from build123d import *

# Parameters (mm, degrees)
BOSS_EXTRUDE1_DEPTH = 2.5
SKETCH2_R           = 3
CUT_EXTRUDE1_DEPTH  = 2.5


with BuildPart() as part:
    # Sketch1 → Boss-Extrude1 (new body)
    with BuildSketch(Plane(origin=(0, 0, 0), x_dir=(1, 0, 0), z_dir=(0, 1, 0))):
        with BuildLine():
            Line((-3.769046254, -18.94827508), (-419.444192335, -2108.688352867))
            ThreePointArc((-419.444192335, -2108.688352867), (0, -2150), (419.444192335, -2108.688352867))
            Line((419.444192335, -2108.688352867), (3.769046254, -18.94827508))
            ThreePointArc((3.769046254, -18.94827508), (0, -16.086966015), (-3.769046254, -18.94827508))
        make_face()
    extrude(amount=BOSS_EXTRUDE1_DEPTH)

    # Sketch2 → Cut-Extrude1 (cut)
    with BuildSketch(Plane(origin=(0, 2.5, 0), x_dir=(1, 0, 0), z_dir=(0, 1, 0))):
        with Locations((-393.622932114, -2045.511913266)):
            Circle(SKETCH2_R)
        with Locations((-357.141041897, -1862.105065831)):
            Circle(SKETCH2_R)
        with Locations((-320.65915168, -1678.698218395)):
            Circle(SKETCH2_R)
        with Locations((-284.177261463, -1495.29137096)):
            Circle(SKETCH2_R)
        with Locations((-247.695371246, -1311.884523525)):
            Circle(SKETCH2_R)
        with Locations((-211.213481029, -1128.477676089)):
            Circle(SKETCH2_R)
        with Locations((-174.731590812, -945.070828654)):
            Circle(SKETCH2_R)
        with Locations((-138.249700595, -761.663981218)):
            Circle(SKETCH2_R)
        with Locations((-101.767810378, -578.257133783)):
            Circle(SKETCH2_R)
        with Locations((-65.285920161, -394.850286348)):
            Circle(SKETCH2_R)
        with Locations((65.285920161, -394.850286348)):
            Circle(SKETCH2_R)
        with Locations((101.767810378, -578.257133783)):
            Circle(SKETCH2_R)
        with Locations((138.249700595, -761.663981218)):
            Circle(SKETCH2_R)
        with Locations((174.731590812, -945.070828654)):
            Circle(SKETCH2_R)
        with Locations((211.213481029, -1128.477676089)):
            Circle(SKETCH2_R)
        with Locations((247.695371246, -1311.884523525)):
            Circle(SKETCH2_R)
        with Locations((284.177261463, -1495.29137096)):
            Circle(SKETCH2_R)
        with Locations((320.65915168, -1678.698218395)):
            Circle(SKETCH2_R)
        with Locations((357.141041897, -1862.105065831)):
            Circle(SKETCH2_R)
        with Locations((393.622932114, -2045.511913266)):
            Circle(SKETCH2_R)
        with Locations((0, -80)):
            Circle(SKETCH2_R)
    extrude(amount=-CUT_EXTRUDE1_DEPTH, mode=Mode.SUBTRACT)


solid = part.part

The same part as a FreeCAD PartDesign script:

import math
import FreeCAD as App
import Part
import Sketcher
Q = App.Units.Quantity

doc = App.newDocument("Part")
body = doc.addObject("PartDesign::Body", "Body")

sketch1 = body.newObject("Sketcher::SketchObject", "Sketch")
sketch1.AttachmentSupport = (doc.getObject("XZ_Plane"), [""])
sketch1.MapMode = "FlatFace"
sketch1.addGeometry([
    Part.LineSegment(App.Vector(-3.769046, 18.948275, 0), App.Vector(-419.444192, 2108.688353, 0)),
    Part.ArcOfCircle(Part.Circle(App.Vector(0, 0, 0), App.Vector(0, 0, 1), 2150), math.radians(78.75), math.radians(101.25)),
    Part.LineSegment(App.Vector(419.444192, 2108.688353, 0), App.Vector(3.769046, 18.948275, 0)),
    Part.ArcOfCircle(Part.Circle(App.Vector(0, 20, 0), App.Vector(0, 0, 1), 3.913034), math.radians(-164.408627), math.radians(-15.591373)),
], False)
sketch1.addConstraint([
    Sketcher.Constraint("Coincident", 0, 2, 1, 2),
    Sketcher.Constraint("Coincident", 1, 1, 2, 1),
    Sketcher.Constraint("Coincident", 2, 2, 3, 2),
    Sketcher.Constraint("Coincident", 3, 1, 0, 1),
    Sketcher.Constraint("Coincident", 1, 3, -1, 1),
    Sketcher.Constraint("Symmetric", 2, 2, 3, 1, -2),
    Sketcher.Constraint("Radius", 1, 2150.0),
    Sketcher.Constraint("DistanceY", -1, 1, 3, 3, 20.0),
    Sketcher.Constraint("Angle", 0, Q("101.25 deg")),
    Sketcher.Constraint("Angle", 2, Q("-101.25 deg")),
    Sketcher.Constraint("Radius", 3, 3.913034),
    Sketcher.Constraint("DistanceX", 0, 2, 2, 2, 423.213239),
])
pad1 = body.newObject("PartDesign::Pad", "Pad")
pad1.Profile = sketch1
pad1.Length = 2.5
pad1.Reversed = True

sketch2 = body.newObject("Sketcher::SketchObject", "Sketch001")
sketch2.AttachmentSupport = (doc.getObject("XZ_Plane"), [""])
sketch2.MapMode = "FlatFace"
sketch2.AttachmentOffset = App.Placement(App.Vector(0, 0, -2.5), App.Rotation())
sketch2.addGeometry([
    Part.Circle(App.Vector(-393.622932, 2045.511913, 0), App.Vector(0, 0, 1), 3),
    Part.Circle(App.Vector(-357.141042, 1862.105066, 0), App.Vector(0, 0, 1), 3),
    Part.Circle(App.Vector(-320.659152, 1678.698218, 0), App.Vector(0, 0, 1), 3),
    Part.Circle(App.Vector(-284.177261, 1495.291371, 0), App.Vector(0, 0, 1), 3),
    Part.Circle(App.Vector(-247.695371, 1311.884524, 0), App.Vector(0, 0, 1), 3),
    Part.Circle(App.Vector(-211.213481, 1128.477676, 0), App.Vector(0, 0, 1), 3),
    Part.Circle(App.Vector(-174.731591, 945.070829, 0), App.Vector(0, 0, 1), 3),
    Part.Circle(App.Vector(-138.249701, 761.663981, 0), App.Vector(0, 0, 1), 3),
    Part.Circle(App.Vector(-101.76781, 578.257134, 0), App.Vector(0, 0, 1), 3),
    Part.Circle(App.Vector(-65.28592, 394.850286, 0), App.Vector(0, 0, 1), 3),
    Part.Circle(App.Vector(65.28592, 394.850286, 0), App.Vector(0, 0, 1), 3),
    Part.Circle(App.Vector(101.76781, 578.257134, 0), App.Vector(0, 0, 1), 3),
    Part.Circle(App.Vector(138.249701, 761.663981, 0), App.Vector(0, 0, 1), 3),
    Part.Circle(App.Vector(174.731591, 945.070829, 0), App.Vector(0, 0, 1), 3),
    Part.Circle(App.Vector(211.213481, 1128.477676, 0), App.Vector(0, 0, 1), 3),
    Part.Circle(App.Vector(247.695371, 1311.884524, 0), App.Vector(0, 0, 1), 3),
    Part.Circle(App.Vector(284.177261, 1495.291371, 0), App.Vector(0, 0, 1), 3),
    Part.Circle(App.Vector(320.659152, 1678.698218, 0), App.Vector(0, 0, 1), 3),
    Part.Circle(App.Vector(357.141042, 1862.105066, 0), App.Vector(0, 0, 1), 3),
    Part.Circle(App.Vector(393.622932, 2045.511913, 0), App.Vector(0, 0, 1), 3),
    Part.Circle(App.Vector(0, 80, 0), App.Vector(0, 0, 1), 3),
], False)
sketch2.addConstraint([
    Sketcher.Constraint("Equal", 0, 1),
    Sketcher.Constraint("Equal", 1, 2),
    Sketcher.Constraint("Equal", 2, 3),
    Sketcher.Constraint("Equal", 3, 4),
    Sketcher.Constraint("Equal", 4, 5),
    Sketcher.Constraint("Equal", 5, 6),
    Sketcher.Constraint("Equal", 6, 7),
    Sketcher.Constraint("Equal", 7, 8),
    Sketcher.Constraint("Equal", 8, 9),
    Sketcher.Constraint("Equal", 9, 10),
    Sketcher.Constraint("Equal", 10, 11),
    Sketcher.Constraint("Equal", 11, 12),
    Sketcher.Constraint("Equal", 12, 13),
    Sketcher.Constraint("Equal", 13, 14),
    Sketcher.Constraint("Equal", 14, 15),
    Sketcher.Constraint("Equal", 15, 16),
    Sketcher.Constraint("Equal", 16, 17),
    Sketcher.Constraint("Equal", 17, 18),
    Sketcher.Constraint("Equal", 18, 19),
    Sketcher.Constraint("Equal", 19, 20),
    Sketcher.Constraint("Symmetric", 9, 3, 10, 3, -2),
    Sketcher.Constraint("Symmetric", 8, 3, 11, 3, -2),
    Sketcher.Constraint("Symmetric", 7, 3, 12, 3, -2),
    Sketcher.Constraint("Symmetric", 6, 3, 13, 3, -2),
    Sketcher.Constraint("Symmetric", 5, 3, 14, 3, -2),
    Sketcher.Constraint("Symmetric", 4, 3, 15, 3, -2),
    Sketcher.Constraint("Symmetric", 3, 3, 16, 3, -2),
    Sketcher.Constraint("Symmetric", 2, 3, 17, 3, -2),
    Sketcher.Constraint("Symmetric", 1, 3, 18, 3, -2),
    Sketcher.Constraint("Symmetric", 0, 3, 19, 3, -2),
    Sketcher.Constraint("PointOnObject", 20, 3, -2),
    Sketcher.Constraint("Diameter", 0, 6.0),
    Sketcher.Constraint("DistanceY", -1, 1, 20, 3, 80.0),
    Sketcher.Constraint("DistanceX", 7, 3, -1, 1, 138.249701),
    Sketcher.Constraint("DistanceX", 5, 3, 10, 3, 276.499401),
    Sketcher.Constraint("DistanceX", 6, 3, 11, 3, 276.499401),
    Sketcher.Constraint("DistanceX", 1, 3, -1, 1, 357.141042),
    Sketcher.Constraint("DistanceX", 2, 3, -1, 1, 320.659152),
    Sketcher.Constraint("DistanceY", -1, 1, 2, 3, 1678.698218),
    Sketcher.Constraint("DistanceX", 3, 3, -1, 1, 284.177261),
    Sketcher.Constraint("DistanceY", -1, 1, 3, 3, 1495.291371),
    Sketcher.Constraint("DistanceX", 4, 3, -1, 1, 247.695371),
    Sketcher.Constraint("DistanceX", 5, 3, -1, 1, 211.213481),
    Sketcher.Constraint("DistanceX", 6, 3, -1, 1, 174.731591),
    Sketcher.Constraint("DistanceY", -1, 1, 6, 3, 945.070829),
    Sketcher.Constraint("DistanceY", -1, 1, 7, 3, 761.663981),
    Sketcher.Constraint("DistanceX", 0, 3, 1, 3, 36.48189),
    Sketcher.Constraint("DistanceY", 4, 3, 0, 3, 733.62739),
    Sketcher.Constraint("DistanceY", 5, 3, 1, 3, 733.62739),
    Sketcher.Constraint("DistanceY", 8, 3, 4, 3, 733.62739),
    Sketcher.Constraint("DistanceY", 9, 3, 5, 3, 733.62739),
    Sketcher.Constraint("DistanceY", -1, 1, 0, 3, 2045.511913),
    Sketcher.Constraint("DistanceY", -1, 1, 1, 3, 1862.105066),
])
pocket1 = body.newObject("PartDesign::Pocket", "Pocket")
pocket1.Profile = sketch2
pocket1.Length = 2.5
pocket1.Reversed = True

doc.recompute()
